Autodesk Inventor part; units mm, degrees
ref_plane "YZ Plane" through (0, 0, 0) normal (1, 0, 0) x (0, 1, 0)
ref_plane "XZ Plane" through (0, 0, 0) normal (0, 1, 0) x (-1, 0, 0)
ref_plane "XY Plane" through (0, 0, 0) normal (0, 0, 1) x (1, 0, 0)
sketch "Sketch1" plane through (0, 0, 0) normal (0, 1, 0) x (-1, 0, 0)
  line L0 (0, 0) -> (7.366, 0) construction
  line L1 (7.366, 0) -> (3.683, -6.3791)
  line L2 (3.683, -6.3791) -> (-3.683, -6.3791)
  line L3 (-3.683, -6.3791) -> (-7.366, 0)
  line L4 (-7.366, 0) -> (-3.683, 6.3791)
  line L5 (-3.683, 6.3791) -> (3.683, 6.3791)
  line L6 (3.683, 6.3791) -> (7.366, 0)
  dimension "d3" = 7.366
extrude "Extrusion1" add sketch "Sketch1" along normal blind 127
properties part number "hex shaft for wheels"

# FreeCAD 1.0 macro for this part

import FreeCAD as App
import Part
import Sketcher
from FreeCAD import Vector
Q = App.Units.Quantity


def add_polygon(sketch, points):
    """Adds a closed chain of lines whose ends are joined by coincident constraints."""
    first, n = sketch.GeometryCount, len(points)
    for a, b in zip(points, points[1:] + points[:1]):
        sketch.addGeometry(Part.LineSegment(App.Vector(*a, 0), App.Vector(*b, 0)), False)
    for i in range(n):
        sketch.addConstraint(Sketcher.Constraint("Coincident", first + i, 2, first + (i + 1) % n, 1))

doc = App.newDocument("Part")
body = doc.addObject("PartDesign::Body", "Body")

sketch1 = body.newObject("Sketcher::SketchObject", "Sketch")
sketch1.AttachmentSupport = (doc.getObject("XZ_Plane"), [""])
sketch1.MapMode = "FlatFace"
add_polygon(sketch1, [(-4, -6), (-7, 0), (-4, 6), (4, 6), (7, 0), (4, -6)])
sketch1.addConstraint(Sketcher.Constraint("Horizontal", 2))
sketch1.addConstraint(Sketcher.Constraint("Horizontal", 5))
sketch1.addConstraint(Sketcher.Constraint("Symmetric", 0, 2, 3, 2, -1, 1))
sketch1.addConstraint(Sketcher.Constraint("Symmetric", 1, 2, 4, 2, -1, 1))
sketch1.addConstraint(Sketcher.Constraint("PointOnObject", 0, 2, -1))
sketch1.addConstraint(Sketcher.Constraint("Parallel", 0, 3))
sketch1.addConstraint(Sketcher.Constraint("Vertical", 2, 2, 4, 2))
sketch1.addConstraint(Sketcher.Constraint("DistanceX", 2, 1, 2, 2, Q("0.29 in")))
sketch1.addConstraint(Sketcher.Constraint("Distance", 0, Q("0.29 in")))
sketch1.addConstraint(Sketcher.Constraint("DistanceX", 0, 2, -1, 1, Q("0.29 in")))
pad1 = body.newObject("PartDesign::Pad", "Pad")
pad1.Profile = sketch1
pad1.Length = Q("5 in")
pad1.Reversed = True

doc.recompute()
